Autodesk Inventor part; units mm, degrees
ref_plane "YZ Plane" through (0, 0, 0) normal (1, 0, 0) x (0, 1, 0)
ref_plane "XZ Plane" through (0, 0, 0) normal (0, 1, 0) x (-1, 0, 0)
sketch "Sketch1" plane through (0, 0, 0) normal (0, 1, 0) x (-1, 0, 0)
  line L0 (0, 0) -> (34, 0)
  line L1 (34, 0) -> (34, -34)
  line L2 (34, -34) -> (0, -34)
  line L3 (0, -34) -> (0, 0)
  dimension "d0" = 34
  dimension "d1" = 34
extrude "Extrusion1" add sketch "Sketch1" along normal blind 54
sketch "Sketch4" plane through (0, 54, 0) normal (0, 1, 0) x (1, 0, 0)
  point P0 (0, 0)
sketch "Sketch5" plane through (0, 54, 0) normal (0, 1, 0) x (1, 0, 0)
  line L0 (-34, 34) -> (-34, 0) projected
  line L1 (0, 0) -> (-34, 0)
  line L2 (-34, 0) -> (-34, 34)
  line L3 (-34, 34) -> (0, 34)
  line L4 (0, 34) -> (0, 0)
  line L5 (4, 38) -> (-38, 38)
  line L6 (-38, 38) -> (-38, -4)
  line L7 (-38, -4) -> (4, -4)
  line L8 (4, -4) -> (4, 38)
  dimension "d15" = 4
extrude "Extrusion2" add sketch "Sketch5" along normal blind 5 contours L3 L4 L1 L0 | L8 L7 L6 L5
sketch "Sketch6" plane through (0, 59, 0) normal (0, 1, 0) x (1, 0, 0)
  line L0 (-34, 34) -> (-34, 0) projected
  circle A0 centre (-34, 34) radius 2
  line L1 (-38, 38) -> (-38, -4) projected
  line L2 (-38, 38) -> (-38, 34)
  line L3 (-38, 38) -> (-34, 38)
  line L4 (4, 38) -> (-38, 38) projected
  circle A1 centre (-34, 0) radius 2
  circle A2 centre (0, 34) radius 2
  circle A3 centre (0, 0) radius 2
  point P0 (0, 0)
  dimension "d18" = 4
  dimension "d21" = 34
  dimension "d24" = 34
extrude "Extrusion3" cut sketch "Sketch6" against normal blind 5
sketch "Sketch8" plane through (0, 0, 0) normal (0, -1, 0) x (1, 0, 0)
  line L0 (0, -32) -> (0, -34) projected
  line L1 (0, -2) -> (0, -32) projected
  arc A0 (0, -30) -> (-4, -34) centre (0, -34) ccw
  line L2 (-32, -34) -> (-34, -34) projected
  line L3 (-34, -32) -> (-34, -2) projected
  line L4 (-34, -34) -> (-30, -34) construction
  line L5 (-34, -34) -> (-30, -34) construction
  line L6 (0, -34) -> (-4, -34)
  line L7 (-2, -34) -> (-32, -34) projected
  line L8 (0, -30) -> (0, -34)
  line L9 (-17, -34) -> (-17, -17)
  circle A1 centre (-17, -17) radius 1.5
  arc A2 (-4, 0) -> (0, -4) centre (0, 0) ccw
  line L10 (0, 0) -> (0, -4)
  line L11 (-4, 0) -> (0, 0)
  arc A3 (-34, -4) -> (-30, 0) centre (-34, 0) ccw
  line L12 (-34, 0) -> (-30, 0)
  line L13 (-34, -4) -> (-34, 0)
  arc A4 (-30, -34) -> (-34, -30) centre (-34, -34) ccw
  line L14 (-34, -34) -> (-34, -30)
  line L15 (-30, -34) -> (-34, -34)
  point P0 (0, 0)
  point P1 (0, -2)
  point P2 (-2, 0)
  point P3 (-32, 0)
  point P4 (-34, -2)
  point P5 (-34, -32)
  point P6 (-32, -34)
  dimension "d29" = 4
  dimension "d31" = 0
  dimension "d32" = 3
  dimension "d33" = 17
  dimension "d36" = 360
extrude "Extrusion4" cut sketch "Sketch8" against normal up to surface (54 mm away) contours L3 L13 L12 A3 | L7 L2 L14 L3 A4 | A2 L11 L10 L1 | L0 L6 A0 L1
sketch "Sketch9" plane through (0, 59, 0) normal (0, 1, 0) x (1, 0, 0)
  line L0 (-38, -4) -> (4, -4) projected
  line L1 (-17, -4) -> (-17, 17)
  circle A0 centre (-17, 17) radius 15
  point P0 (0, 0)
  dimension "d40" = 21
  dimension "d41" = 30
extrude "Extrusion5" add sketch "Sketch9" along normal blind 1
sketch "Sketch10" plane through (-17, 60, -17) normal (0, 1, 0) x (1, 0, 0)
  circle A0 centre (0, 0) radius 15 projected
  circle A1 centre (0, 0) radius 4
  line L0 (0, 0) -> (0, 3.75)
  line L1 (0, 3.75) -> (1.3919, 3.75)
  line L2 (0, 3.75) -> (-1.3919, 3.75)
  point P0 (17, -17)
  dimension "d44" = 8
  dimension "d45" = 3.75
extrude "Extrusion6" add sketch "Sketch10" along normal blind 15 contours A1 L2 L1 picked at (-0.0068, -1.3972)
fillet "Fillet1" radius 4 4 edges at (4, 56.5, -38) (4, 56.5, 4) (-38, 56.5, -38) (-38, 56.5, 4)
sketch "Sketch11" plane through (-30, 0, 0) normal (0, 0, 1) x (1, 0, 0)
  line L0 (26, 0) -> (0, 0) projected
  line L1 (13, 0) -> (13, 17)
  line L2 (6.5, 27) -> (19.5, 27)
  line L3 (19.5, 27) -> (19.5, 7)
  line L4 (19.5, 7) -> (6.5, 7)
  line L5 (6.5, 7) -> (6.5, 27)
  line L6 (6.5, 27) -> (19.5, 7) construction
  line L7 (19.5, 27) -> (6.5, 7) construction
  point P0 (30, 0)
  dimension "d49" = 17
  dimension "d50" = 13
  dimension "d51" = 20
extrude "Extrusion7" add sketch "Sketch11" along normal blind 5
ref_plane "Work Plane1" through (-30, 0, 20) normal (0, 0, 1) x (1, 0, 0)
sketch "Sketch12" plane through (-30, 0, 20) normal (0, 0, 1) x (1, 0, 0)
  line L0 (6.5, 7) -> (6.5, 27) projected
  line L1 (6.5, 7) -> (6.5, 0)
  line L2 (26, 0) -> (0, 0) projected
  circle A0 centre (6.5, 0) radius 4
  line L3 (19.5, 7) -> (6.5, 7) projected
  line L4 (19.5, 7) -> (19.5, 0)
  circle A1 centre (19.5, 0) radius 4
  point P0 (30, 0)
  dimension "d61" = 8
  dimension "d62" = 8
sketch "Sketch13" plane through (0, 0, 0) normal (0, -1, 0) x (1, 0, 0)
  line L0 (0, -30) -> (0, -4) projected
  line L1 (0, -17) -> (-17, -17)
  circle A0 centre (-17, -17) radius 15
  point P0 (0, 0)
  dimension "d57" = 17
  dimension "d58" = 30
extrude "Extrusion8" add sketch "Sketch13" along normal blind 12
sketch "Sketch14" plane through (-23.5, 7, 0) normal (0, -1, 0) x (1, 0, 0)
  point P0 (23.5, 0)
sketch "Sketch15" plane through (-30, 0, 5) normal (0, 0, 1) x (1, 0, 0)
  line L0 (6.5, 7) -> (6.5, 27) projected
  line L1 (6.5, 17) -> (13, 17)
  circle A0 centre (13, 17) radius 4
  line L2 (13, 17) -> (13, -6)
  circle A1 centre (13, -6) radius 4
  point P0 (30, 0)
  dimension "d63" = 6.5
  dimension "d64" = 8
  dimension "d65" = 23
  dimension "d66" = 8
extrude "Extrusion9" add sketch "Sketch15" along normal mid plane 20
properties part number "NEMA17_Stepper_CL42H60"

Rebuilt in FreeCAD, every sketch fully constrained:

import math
import FreeCAD as App
import Part
import Sketcher
from FreeCAD import Vector
Q = App.Units.Quantity


def edges_at(feature, points):
    """Names of the edges that pass closest to the given points."""
    edges = feature.Shape.Edges
    near = lambda p: min(range(len(edges)), key=lambda i: edges[i].distToShape(Part.Vertex(*p))[0])
    return sorted({f"Edge{near(p) + 1}" for p in points})


def add_polygon(sketch, points):
    """Adds a closed chain of lines whose ends are joined by coincident constraints."""
    first, n = sketch.GeometryCount, len(points)
    for a, b in zip(points, points[1:] + points[:1]):
        sketch.addGeometry(Part.LineSegment(App.Vector(*a, 0), App.Vector(*b, 0)), False)
    for i in range(n):
        sketch.addConstraint(Sketcher.Constraint("Coincident", first + i, 2, first + (i + 1) % n, 1))

doc = App.newDocument("Part")
body = doc.addObject("PartDesign::Body", "Body")

# Sketch on XZ plane
sketch1 = body.newObject("Sketcher::SketchObject", "Sketch")
sketch1.AttachmentSupport = (doc.getObject("XZ_Plane"), [""])
sketch1.MapMode = "FlatFace"
add_polygon(sketch1, [(-34, 0), (0, 0), (0, -34), (-34, -34)])  # lines 0-3
sketch1.addConstraint([
    Sketcher.Constraint("Horizontal", 0),
    Sketcher.Constraint("Vertical", 1),
    Sketcher.Constraint("Horizontal", 2),
    Sketcher.Constraint("Vertical", 3),
    Sketcher.Constraint("Coincident", 0, 2, -1, 1),
    Sketcher.Constraint("Equal", 2, 1),
    Sketcher.Constraint("DistanceX", 0, 1, 0, 2, Q("34 mm")),
])
pad1 = body.newObject("PartDesign::Pad", "Pad")
pad1.Profile = sketch1
pad1.Length = 54
pad1.Reversed = True

# Sketch on XZ plane
sketch2 = body.newObject("Sketcher::SketchObject", "Sketch001")
sketch2.AttachmentSupport = (doc.getObject("XZ_Plane"), [""])
sketch2.MapMode = "FlatFace"
sketch2.AttachmentOffset = App.Placement(Vector(0, 0, -54), App.Rotation())
add_polygon(sketch2, [(4, 4), (4, -38), (-38, -38), (-38, 4)])  # lines 0-3
sketch2.addConstraint([
    Sketcher.Constraint("Vertical", 0),
    Sketcher.Constraint("Horizontal", 1),
    Sketcher.Constraint("Vertical", 2),
    Sketcher.Constraint("Horizontal", 3),
    Sketcher.Constraint("Equal", 3, 0),
    Sketcher.Constraint("DistanceX", -1, 1, 0, 2, Q("4 mm")),
    Sketcher.Constraint("DistanceY", -1, 1, 2, 2, Q("4 mm")),
    Sketcher.Constraint("DistanceX", 1, 2, 1, 1, Q("42 mm")),
])
pad2 = body.newObject("PartDesign::Pad", "Pad001")
pad2.Profile = sketch2
pad2.Length = 5
pad2.Reversed = True

# Sketch on XZ plane
sketch3 = body.newObject("Sketcher::SketchObject", "Sketch002")
sketch3.AttachmentSupport = (doc.getObject("XZ_Plane"), [""])
sketch3.MapMode = "FlatFace"
sketch3.AttachmentOffset = App.Placement(Vector(0, 0, -59), App.Rotation())
sketch3.addGeometry([
    Part.Circle(Vector(-34, 0, 0), Vector(0, 0, 1), 2),
    Part.Circle(Vector(-34, -34, 0), Vector(0, 0, 1), 2),
    Part.Circle(Vector(0, -34, 0), Vector(0, 0, 1), 2),
    Part.Circle(Vector(0, 0, 0), Vector(0, 0, 1), 2),
], False)
sketch3.addConstraint([
    Sketcher.Constraint("Coincident", 3, 3, -1, 1),
    Sketcher.Constraint("Equal", 0, 1),
    Sketcher.Constraint("Equal", 1, 2),
    Sketcher.Constraint("Equal", 2, 3),
    Sketcher.Constraint("PointOnObject", 0, 3, -1),
    Sketcher.Constraint("PointOnObject", 2, 3, -2),
    Sketcher.Constraint("Horizontal", 1, 3, 2, 3),
    Sketcher.Constraint("Vertical", 0, 3, 1, 3),
    Sketcher.Constraint("Diameter", 0, Q("4 mm")),
    Sketcher.Constraint("DistanceX", 0, 3, -1, 1, Q("34 mm")),
    Sketcher.Constraint("DistanceY", 1, 3, -1, 1, Q("34 mm")),
])
pocket1 = body.newObject("PartDesign::Pocket", "Pocket")
pocket1.Profile = sketch3
pocket1.Length = 5
pocket1.Reversed = True

# Sketch on XZ plane
sketch4 = body.newObject("Sketcher::SketchObject", "Sketch003")
sketch4.AttachmentSupport = (doc.getObject("XZ_Plane"), [""])
sketch4.MapMode = "FlatFace"
sketch4.addGeometry([
    Part.LineSegment(Vector(-34, 0, 0), Vector(-34, -4, 0)),  # 0
    Part.ArcOfCircle(Part.Circle(Vector(-34, 0, 0), Vector(0, 0, 1), 4), math.radians(-90), math.radians(0)),  # 1
    Part.LineSegment(Vector(-30, 0, 0), Vector(-34, 0, 0)),  # 2
    Part.LineSegment(Vector(-34, -34, 0), Vector(-30, -34, 0)),  # 3
    Part.ArcOfCircle(Part.Circle(Vector(-34, -34, 0), Vector(0, 0, 1), 4), math.radians(0), math.radians(90)),  # 4
    Part.LineSegment(Vector(-34, -30, 0), Vector(-34, -34, 0)),  # 5
    Part.ArcOfCircle(Part.Circle(Vector(0, 0, 0), Vector(0, 0, 1), 4), math.radians(180), math.radians(270)),  # 6
    Part.LineSegment(Vector(0, -4, 0), Vector(0, 0, 0)),  # 7
    Part.LineSegment(Vector(0, 0, 0), Vector(-4, 0, 0)),  # 8
    Part.LineSegment(Vector(0, -34, 0), Vector(0, -30, 0)),  # 9
    Part.ArcOfCircle(Part.Circle(Vector(0, -34, 0), Vector(0, 0, 1), 4), math.radians(90), math.radians(180)),  # 10
    Part.LineSegment(Vector(-4, -34, 0), Vector(0, -34, 0)),  # 11
], False)
sketch4.addConstraint([
    Sketcher.Constraint("Coincident", 0, 2, 1, 1),
    Sketcher.Constraint("Coincident", 1, 2, 2, 1),
    Sketcher.Constraint("Coincident", 2, 2, 0, 1),
    Sketcher.Constraint("Coincident", 3, 2, 4, 1),
    Sketcher.Constraint("Coincident", 4, 2, 5, 1),
    Sketcher.Constraint("Coincident", 5, 2, 3, 1),
    Sketcher.Constraint("Coincident", 6, 2, 7, 1),
    Sketcher.Constraint("Coincident", 7, 2, 8, 1),
    Sketcher.Constraint("Coincident", 8, 2, 6, 1),
    Sketcher.Constraint("Coincident", 9, 2, 10, 1),
    Sketcher.Constraint("Coincident", 10, 2, 11, 1),
    Sketcher.Constraint("Coincident", 11, 2, 9, 1),
    Sketcher.Constraint("Vertical", 0),
    Sketcher.Constraint("Horizontal", 2),
    Sketcher.Constraint("Horizontal", 3),
    Sketcher.Constraint("Vertical", 5),
    Sketcher.Constraint("Vertical", 7),
    Sketcher.Constraint("Horizontal", 8),
    Sketcher.Constraint("Vertical", 9),
    Sketcher.Constraint("Horizontal", 11),
    Sketcher.Constraint("Coincident", 6, 3, -1, 1),
    Sketcher.Constraint("Coincident", 7, 2, -1, 1),
    Sketcher.Constraint("Coincident", 2, 2, 1, 3),
    Sketcher.Constraint("Coincident", 5, 2, 4, 3),
    Sketcher.Constraint("Coincident", 11, 2, 10, 3),
    Sketcher.Constraint("Equal", 1, 4),
    Sketcher.Constraint("Equal", 4, 6),
    Sketcher.Constraint("Equal", 6, 10),
    Sketcher.Constraint("PointOnObject", 1, 3, -1),
    Sketcher.Constraint("PointOnObject", 10, 3, -2),
    Sketcher.Constraint("Horizontal", 4, 3, 10, 3),
    Sketcher.Constraint("Vertical", 1, 3, 4, 3),
    Sketcher.Constraint("Radius", 1, Q("4 mm")),
    Sketcher.Constraint("DistanceX", 1, 3, -1, 1, Q("34 mm")),
    Sketcher.Constraint("DistanceY", 4, 3, -1, 1, Q("34 mm")),
])
pocket2 = body.newObject("PartDesign::Pocket", "Pocket001")
pocket2.Profile = sketch4
pocket2.Length = 54

# Sketch on XZ plane
sketch5 = body.newObject("Sketcher::SketchObject", "Sketch004")
sketch5.AttachmentSupport = (doc.getObject("XZ_Plane"), [""])
sketch5.MapMode = "FlatFace"
sketch5.AttachmentOffset = App.Placement(Vector(0, 0, -59), App.Rotation())
sketch5.addGeometry(Part.Circle(Vector(-17, -17, 0), Vector(0, 0, 1), 15), False)
sketch5.addConstraint([
    Sketcher.Constraint("Diameter", 0, Q("30 mm")),
    Sketcher.Constraint("DistanceX", 0, 3, -1, 1, Q("17 mm")),
    Sketcher.Constraint("DistanceY", 0, 3, -1, 1, Q("17 mm")),
])
pad3 = body.newObject("PartDesign::Pad", "Pad002")
pad3.Profile = sketch5
pad3.Length = 1
pad3.Reversed = True

# Sketch on XZ plane
sketch6 = body.newObject("Sketcher::SketchObject", "Sketch005")
sketch6.AttachmentSupport = (doc.getObject("XZ_Plane"), [""])
sketch6.MapMode = "FlatFace"
sketch6.AttachmentOffset = App.Placement(Vector(0, 0, -60), App.Rotation())
sketch6.addGeometry([
    Part.ArcOfCircle(Part.Circle(Vector(-17, -17, 0), Vector(0, 0, 1), 4), math.radians(-69.636417), math.radians(249.636417)),
    Part.LineSegment(Vector(-18.3919, -20.75, 0), Vector(-15.6081, -20.75, 0)),
], False)
sketch6.addConstraint([
    Sketcher.Constraint("Coincident", 0, 1, 1, 2),
    Sketcher.Constraint("Coincident", 1, 1, 0, 2),
    Sketcher.Constraint("Horizontal", 1),
    Sketcher.Constraint("Radius", 0, Q("4 mm")),
    Sketcher.Constraint("DistanceY", 0, 1, 0, 3, Q("3.75 mm")),
    Sketcher.Constraint("DistanceX", 0, 3, -1, 1, Q("17 mm")),
    Sketcher.Constraint("DistanceY", 0, 3, -1, 1, Q("17 mm")),
])
pad4 = body.newObject("PartDesign::Pad", "Pad003")
pad4.Profile = sketch6
pad4.Length = 15
pad4.Reversed = True
doc.recompute()

fillet = body.newObject("PartDesign::Fillet", "Fillet")
fillet.Base = (pad4, edges_at(pad4, [
    (4, 56.5, -38),
    (4, 56.5, 4),
    (-38, 56.5, -38),
    (-38, 56.5, 4),
]))
fillet.Radius = 4

# Sketch on XY plane
sketch7 = body.newObject("Sketcher::SketchObject", "Sketch006")
sketch7.AttachmentSupport = (doc.getObject("XY_Plane"), [""])
sketch7.MapMode = "FlatFace"
add_polygon(sketch7, [(-10.5, 27), (-23.5, 27), (-23.5, 7), (-10.5, 7)])  # lines 0-3
sketch7.addConstraint([
    Sketcher.Constraint("Horizontal", 0),
    Sketcher.Constraint("Vertical", 1),
    Sketcher.Constraint("Horizontal", 2),
    Sketcher.Constraint("Vertical", 3),
    Sketcher.Constraint("DistanceX", 0, 2, 0, 1, Q("13 mm")),
    Sketcher.Constraint("DistanceY", 1, 2, 1, 1, Q("20 mm")),
    Sketcher.Constraint("DistanceY", -1, 1, 0, 2, Q("27 mm")),
    Sketcher.Constraint("DistanceX", 0, 2, -1, 1, Q("23.5 mm")),
])
pad5 = body.newObject("PartDesign::Pad", "Pad004")
pad5.Profile = sketch7
pad5.Length = 5

# Sketch on XZ plane
sketch8 = body.newObject("Sketcher::SketchObject", "Sketch007")
sketch8.AttachmentSupport = (doc.getObject("XZ_Plane"), [""])
sketch8.MapMode = "FlatFace"
sketch8.addGeometry(Part.Circle(Vector(-17, -17, 0), Vector(0, 0, 1), 15), False)
sketch8.addConstraint([
    Sketcher.Constraint("Diameter", 0, Q("30 mm")),
    Sketcher.Constraint("DistanceX", 0, 3, -1, 1, Q("17 mm")),
    Sketcher.Constraint("DistanceY", 0, 3, -1, 1, Q("17 mm")),
])
pad6 = body.newObject("PartDesign::Pad", "Pad005")
pad6.Profile = sketch8
pad6.Length = 12

# Sketch on XY plane
sketch9 = body.newObject("Sketcher::SketchObject", "Sketch008")
sketch9.AttachmentSupport = (doc.getObject("XY_Plane"), [""])
sketch9.MapMode = "FlatFace"
sketch9.AttachmentOffset = App.Placement(Vector(0, 0, 5), App.Rotation())
sketch9.addGeometry([
    Part.Circle(Vector(-17, 17, 0), Vector(0, 0, 1), 4),
    Part.Circle(Vector(-17, -6, 0), Vector(0, 0, 1), 4),
], False)
sketch9.addConstraint([
    Sketcher.Constraint("Equal", 0, 1),
    Sketcher.Constraint("Vertical", 0, 3, 1, 3),
    Sketcher.Constraint("Diameter", 0, Q("8 mm")),
    Sketcher.Constraint("DistanceY", 1, 3, 0, 3, Q("23 mm")),
    Sketcher.Constraint("DistanceX", 0, 3, -1, 1, Q("17 mm")),
    Sketcher.Constraint("DistanceY", -1, 1, 0, 3, Q("17 mm")),
])
pad7 = body.newObject("PartDesign::Pad", "Pad006")
pad7.Profile = sketch9
pad7.Length = 20
pad7.Midplane = True

doc.recompute()
